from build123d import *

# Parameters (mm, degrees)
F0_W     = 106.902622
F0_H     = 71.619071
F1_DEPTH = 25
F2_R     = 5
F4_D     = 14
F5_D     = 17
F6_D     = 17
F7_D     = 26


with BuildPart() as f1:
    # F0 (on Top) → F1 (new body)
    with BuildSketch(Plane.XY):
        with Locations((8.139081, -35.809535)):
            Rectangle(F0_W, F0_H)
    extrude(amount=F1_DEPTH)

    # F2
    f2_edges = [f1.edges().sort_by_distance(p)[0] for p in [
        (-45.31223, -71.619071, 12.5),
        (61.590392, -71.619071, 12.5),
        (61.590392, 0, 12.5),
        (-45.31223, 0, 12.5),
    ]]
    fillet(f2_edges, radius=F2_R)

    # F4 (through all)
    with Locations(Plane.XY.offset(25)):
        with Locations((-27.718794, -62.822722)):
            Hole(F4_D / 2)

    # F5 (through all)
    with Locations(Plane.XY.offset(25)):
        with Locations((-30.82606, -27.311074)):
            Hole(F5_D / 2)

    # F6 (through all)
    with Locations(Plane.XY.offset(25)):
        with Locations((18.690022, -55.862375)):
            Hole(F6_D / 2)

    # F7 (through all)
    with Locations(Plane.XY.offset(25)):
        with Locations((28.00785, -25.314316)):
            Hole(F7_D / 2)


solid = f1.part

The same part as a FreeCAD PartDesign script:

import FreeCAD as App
import Part
import Sketcher

V = App.Vector


def edges_at(feature, points):
    """Names of the edges that pass closest to the given points."""
    edges = feature.Shape.Edges
    near = lambda p: min(range(len(edges)), key=lambda i: edges[i].distToShape(Part.Vertex(*p))[0])
    return sorted({f"Edge{near(p) + 1}" for p in points})


def add_polygon(sketch, points):
    """Adds a closed chain of lines whose ends are joined by coincident constraints."""
    first, n = sketch.GeometryCount, len(points)
    for a, b in zip(points, points[1:] + points[:1]):
        sketch.addGeometry(Part.LineSegment(App.Vector(*a, 0), App.Vector(*b, 0)), False)
    for i in range(n):
        sketch.addConstraint(Sketcher.Constraint("Coincident", first + i, 2, first + (i + 1) % n, 1))

doc = App.newDocument("Part")
body = doc.addObject("PartDesign::Body", "Body")

sketch1 = body.newObject("Sketcher::SketchObject", "Sketch")
sketch1.AttachmentSupport = (doc.getObject("XY_Plane"), [""])
sketch1.MapMode = "FlatFace"
add_polygon(sketch1, [(-45.31223, 0), (-45.31223, -71.619071), (61.590392, -71.619071), (61.590392, 0)])
sketch1.addConstraint([
    Sketcher.Constraint("Vertical", 0),
    Sketcher.Constraint("Horizontal", 1),
    Sketcher.Constraint("Vertical", 2),
    Sketcher.Constraint("Horizontal", 3),
    Sketcher.Constraint("PointOnObject", 2, 2, -1),
    Sketcher.Constraint("DistanceY", 0, 2, 0, 1, 71.619071),
    Sketcher.Constraint("DistanceX", 1, 1, 1, 2, 106.902622),
    Sketcher.Constraint("DistanceX", 0, 2, -1, 1, 45.31223),
])
pad1 = body.newObject("PartDesign::Pad", "Pad")
pad1.Profile = sketch1
pad1.Length = 25
doc.recompute()

fillet = body.newObject("PartDesign::Fillet", "Fillet")
fillet.Base = (pad1, edges_at(pad1, [
    (-45.312, -71.619, 12.5),
    (61.59, -71.619, 12.5),
    (61.59, 0, 12.5),
    (-45.312, 0, 12.5),
]))
fillet.Radius = 5

sketch2 = body.newObject("Sketcher::SketchObject", "Sketch001")
sketch2.AttachmentSupport = (doc.getObject("XY_Plane"), [""])
sketch2.MapMode = "FlatFace"
sketch2.AttachmentOffset = App.Placement(V(0, 0, 25), App.Rotation())
sketch2.addGeometry(Part.Circle(V(-27.718794, -62.822722, 0), V(0, 0, 1), 7), False)
sketch2.addConstraint([
    Sketcher.Constraint("Diameter", 0, 14.0),
    Sketcher.Constraint("DistanceX", 0, 3, -1, 1, 27.718794),
    Sketcher.Constraint("DistanceY", 0, 3, -1, 1, 62.822722),
])
doc.recompute()
hole = body.newObject("PartDesign::Hole", "Hole")
hole.Profile = sketch2
hole.ThreadType = "None"
hole.Diameter = 14
hole.DepthType = "ThroughAll"

sketch3 = body.newObject("Sketcher::SketchObject", "Sketch002")
sketch3.AttachmentSupport = (doc.getObject("XY_Plane"), [""])
sketch3.MapMode = "FlatFace"
sketch3.AttachmentOffset = App.Placement(V(0, 0, 25), App.Rotation())
sketch3.addGeometry(Part.Circle(V(-30.82606, -27.311074, 0), V(0, 0, 1), 8.5), False)
sketch3.addConstraint([
    Sketcher.Constraint("Diameter", 0, 17.0),
    Sketcher.Constraint("DistanceX", 0, 3, -1, 1, 30.82606),
    Sketcher.Constraint("DistanceY", 0, 3, -1, 1, 27.311074),
])
doc.recompute()
hole2 = body.newObject("PartDesign::Hole", "Hole001")
hole2.Profile = sketch3
hole2.ThreadType = "None"
hole2.Diameter = 17
hole2.DepthType = "ThroughAll"

sketch4 = body.newObject("Sketcher::SketchObject", "Sketch003")
sketch4.AttachmentSupport = (doc.getObject("XY_Plane"), [""])
sketch4.MapMode = "FlatFace"
sketch4.AttachmentOffset = App.Placement(V(0, 0, 25), App.Rotation())
sketch4.addGeometry(Part.Circle(V(18.690022, -55.862375, 0), V(0, 0, 1), 8.5), False)
sketch4.addConstraint([
    Sketcher.Constraint("Diameter", 0, 17.0),
    Sketcher.Constraint("DistanceX", -1, 1, 0, 3, 18.690022),
    Sketcher.Constraint("DistanceY", 0, 3, -1, 1, 55.862375),
])
doc.recompute()
hole3 = body.newObject("PartDesign::Hole", "Hole002")
hole3.Profile = sketch4
hole3.ThreadType = "None"
hole3.Diameter = 17
hole3.DepthType = "ThroughAll"

sketch5 = body.newObject("Sketcher::SketchObject", "Sketch004")
sketch5.AttachmentSupport = (doc.getObject("XY_Plane"), [""])
sketch5.MapMode = "FlatFace"
sketch5.AttachmentOffset = App.Placement(V(0, 0, 25), App.Rotation())
sketch5.addGeometry(Part.Circle(V(28.00785, -25.314316, 0), V(0, 0, 1), 13), False)
sketch5.addConstraint([
    Sketcher.Constraint("Diameter", 0, 26.0),
    Sketcher.Constraint("DistanceX", -1, 1, 0, 3, 28.00785),
    Sketcher.Constraint("DistanceY", 0, 3, -1, 1, 25.314316),
])
doc.recompute()
hole4 = body.newObject("PartDesign::Hole", "Hole003")
hole4.Profile = sketch5
hole4.ThreadType = "None"
hole4.Diameter = 26
hole4.DepthType = "ThroughAll"

doc.recompute()
